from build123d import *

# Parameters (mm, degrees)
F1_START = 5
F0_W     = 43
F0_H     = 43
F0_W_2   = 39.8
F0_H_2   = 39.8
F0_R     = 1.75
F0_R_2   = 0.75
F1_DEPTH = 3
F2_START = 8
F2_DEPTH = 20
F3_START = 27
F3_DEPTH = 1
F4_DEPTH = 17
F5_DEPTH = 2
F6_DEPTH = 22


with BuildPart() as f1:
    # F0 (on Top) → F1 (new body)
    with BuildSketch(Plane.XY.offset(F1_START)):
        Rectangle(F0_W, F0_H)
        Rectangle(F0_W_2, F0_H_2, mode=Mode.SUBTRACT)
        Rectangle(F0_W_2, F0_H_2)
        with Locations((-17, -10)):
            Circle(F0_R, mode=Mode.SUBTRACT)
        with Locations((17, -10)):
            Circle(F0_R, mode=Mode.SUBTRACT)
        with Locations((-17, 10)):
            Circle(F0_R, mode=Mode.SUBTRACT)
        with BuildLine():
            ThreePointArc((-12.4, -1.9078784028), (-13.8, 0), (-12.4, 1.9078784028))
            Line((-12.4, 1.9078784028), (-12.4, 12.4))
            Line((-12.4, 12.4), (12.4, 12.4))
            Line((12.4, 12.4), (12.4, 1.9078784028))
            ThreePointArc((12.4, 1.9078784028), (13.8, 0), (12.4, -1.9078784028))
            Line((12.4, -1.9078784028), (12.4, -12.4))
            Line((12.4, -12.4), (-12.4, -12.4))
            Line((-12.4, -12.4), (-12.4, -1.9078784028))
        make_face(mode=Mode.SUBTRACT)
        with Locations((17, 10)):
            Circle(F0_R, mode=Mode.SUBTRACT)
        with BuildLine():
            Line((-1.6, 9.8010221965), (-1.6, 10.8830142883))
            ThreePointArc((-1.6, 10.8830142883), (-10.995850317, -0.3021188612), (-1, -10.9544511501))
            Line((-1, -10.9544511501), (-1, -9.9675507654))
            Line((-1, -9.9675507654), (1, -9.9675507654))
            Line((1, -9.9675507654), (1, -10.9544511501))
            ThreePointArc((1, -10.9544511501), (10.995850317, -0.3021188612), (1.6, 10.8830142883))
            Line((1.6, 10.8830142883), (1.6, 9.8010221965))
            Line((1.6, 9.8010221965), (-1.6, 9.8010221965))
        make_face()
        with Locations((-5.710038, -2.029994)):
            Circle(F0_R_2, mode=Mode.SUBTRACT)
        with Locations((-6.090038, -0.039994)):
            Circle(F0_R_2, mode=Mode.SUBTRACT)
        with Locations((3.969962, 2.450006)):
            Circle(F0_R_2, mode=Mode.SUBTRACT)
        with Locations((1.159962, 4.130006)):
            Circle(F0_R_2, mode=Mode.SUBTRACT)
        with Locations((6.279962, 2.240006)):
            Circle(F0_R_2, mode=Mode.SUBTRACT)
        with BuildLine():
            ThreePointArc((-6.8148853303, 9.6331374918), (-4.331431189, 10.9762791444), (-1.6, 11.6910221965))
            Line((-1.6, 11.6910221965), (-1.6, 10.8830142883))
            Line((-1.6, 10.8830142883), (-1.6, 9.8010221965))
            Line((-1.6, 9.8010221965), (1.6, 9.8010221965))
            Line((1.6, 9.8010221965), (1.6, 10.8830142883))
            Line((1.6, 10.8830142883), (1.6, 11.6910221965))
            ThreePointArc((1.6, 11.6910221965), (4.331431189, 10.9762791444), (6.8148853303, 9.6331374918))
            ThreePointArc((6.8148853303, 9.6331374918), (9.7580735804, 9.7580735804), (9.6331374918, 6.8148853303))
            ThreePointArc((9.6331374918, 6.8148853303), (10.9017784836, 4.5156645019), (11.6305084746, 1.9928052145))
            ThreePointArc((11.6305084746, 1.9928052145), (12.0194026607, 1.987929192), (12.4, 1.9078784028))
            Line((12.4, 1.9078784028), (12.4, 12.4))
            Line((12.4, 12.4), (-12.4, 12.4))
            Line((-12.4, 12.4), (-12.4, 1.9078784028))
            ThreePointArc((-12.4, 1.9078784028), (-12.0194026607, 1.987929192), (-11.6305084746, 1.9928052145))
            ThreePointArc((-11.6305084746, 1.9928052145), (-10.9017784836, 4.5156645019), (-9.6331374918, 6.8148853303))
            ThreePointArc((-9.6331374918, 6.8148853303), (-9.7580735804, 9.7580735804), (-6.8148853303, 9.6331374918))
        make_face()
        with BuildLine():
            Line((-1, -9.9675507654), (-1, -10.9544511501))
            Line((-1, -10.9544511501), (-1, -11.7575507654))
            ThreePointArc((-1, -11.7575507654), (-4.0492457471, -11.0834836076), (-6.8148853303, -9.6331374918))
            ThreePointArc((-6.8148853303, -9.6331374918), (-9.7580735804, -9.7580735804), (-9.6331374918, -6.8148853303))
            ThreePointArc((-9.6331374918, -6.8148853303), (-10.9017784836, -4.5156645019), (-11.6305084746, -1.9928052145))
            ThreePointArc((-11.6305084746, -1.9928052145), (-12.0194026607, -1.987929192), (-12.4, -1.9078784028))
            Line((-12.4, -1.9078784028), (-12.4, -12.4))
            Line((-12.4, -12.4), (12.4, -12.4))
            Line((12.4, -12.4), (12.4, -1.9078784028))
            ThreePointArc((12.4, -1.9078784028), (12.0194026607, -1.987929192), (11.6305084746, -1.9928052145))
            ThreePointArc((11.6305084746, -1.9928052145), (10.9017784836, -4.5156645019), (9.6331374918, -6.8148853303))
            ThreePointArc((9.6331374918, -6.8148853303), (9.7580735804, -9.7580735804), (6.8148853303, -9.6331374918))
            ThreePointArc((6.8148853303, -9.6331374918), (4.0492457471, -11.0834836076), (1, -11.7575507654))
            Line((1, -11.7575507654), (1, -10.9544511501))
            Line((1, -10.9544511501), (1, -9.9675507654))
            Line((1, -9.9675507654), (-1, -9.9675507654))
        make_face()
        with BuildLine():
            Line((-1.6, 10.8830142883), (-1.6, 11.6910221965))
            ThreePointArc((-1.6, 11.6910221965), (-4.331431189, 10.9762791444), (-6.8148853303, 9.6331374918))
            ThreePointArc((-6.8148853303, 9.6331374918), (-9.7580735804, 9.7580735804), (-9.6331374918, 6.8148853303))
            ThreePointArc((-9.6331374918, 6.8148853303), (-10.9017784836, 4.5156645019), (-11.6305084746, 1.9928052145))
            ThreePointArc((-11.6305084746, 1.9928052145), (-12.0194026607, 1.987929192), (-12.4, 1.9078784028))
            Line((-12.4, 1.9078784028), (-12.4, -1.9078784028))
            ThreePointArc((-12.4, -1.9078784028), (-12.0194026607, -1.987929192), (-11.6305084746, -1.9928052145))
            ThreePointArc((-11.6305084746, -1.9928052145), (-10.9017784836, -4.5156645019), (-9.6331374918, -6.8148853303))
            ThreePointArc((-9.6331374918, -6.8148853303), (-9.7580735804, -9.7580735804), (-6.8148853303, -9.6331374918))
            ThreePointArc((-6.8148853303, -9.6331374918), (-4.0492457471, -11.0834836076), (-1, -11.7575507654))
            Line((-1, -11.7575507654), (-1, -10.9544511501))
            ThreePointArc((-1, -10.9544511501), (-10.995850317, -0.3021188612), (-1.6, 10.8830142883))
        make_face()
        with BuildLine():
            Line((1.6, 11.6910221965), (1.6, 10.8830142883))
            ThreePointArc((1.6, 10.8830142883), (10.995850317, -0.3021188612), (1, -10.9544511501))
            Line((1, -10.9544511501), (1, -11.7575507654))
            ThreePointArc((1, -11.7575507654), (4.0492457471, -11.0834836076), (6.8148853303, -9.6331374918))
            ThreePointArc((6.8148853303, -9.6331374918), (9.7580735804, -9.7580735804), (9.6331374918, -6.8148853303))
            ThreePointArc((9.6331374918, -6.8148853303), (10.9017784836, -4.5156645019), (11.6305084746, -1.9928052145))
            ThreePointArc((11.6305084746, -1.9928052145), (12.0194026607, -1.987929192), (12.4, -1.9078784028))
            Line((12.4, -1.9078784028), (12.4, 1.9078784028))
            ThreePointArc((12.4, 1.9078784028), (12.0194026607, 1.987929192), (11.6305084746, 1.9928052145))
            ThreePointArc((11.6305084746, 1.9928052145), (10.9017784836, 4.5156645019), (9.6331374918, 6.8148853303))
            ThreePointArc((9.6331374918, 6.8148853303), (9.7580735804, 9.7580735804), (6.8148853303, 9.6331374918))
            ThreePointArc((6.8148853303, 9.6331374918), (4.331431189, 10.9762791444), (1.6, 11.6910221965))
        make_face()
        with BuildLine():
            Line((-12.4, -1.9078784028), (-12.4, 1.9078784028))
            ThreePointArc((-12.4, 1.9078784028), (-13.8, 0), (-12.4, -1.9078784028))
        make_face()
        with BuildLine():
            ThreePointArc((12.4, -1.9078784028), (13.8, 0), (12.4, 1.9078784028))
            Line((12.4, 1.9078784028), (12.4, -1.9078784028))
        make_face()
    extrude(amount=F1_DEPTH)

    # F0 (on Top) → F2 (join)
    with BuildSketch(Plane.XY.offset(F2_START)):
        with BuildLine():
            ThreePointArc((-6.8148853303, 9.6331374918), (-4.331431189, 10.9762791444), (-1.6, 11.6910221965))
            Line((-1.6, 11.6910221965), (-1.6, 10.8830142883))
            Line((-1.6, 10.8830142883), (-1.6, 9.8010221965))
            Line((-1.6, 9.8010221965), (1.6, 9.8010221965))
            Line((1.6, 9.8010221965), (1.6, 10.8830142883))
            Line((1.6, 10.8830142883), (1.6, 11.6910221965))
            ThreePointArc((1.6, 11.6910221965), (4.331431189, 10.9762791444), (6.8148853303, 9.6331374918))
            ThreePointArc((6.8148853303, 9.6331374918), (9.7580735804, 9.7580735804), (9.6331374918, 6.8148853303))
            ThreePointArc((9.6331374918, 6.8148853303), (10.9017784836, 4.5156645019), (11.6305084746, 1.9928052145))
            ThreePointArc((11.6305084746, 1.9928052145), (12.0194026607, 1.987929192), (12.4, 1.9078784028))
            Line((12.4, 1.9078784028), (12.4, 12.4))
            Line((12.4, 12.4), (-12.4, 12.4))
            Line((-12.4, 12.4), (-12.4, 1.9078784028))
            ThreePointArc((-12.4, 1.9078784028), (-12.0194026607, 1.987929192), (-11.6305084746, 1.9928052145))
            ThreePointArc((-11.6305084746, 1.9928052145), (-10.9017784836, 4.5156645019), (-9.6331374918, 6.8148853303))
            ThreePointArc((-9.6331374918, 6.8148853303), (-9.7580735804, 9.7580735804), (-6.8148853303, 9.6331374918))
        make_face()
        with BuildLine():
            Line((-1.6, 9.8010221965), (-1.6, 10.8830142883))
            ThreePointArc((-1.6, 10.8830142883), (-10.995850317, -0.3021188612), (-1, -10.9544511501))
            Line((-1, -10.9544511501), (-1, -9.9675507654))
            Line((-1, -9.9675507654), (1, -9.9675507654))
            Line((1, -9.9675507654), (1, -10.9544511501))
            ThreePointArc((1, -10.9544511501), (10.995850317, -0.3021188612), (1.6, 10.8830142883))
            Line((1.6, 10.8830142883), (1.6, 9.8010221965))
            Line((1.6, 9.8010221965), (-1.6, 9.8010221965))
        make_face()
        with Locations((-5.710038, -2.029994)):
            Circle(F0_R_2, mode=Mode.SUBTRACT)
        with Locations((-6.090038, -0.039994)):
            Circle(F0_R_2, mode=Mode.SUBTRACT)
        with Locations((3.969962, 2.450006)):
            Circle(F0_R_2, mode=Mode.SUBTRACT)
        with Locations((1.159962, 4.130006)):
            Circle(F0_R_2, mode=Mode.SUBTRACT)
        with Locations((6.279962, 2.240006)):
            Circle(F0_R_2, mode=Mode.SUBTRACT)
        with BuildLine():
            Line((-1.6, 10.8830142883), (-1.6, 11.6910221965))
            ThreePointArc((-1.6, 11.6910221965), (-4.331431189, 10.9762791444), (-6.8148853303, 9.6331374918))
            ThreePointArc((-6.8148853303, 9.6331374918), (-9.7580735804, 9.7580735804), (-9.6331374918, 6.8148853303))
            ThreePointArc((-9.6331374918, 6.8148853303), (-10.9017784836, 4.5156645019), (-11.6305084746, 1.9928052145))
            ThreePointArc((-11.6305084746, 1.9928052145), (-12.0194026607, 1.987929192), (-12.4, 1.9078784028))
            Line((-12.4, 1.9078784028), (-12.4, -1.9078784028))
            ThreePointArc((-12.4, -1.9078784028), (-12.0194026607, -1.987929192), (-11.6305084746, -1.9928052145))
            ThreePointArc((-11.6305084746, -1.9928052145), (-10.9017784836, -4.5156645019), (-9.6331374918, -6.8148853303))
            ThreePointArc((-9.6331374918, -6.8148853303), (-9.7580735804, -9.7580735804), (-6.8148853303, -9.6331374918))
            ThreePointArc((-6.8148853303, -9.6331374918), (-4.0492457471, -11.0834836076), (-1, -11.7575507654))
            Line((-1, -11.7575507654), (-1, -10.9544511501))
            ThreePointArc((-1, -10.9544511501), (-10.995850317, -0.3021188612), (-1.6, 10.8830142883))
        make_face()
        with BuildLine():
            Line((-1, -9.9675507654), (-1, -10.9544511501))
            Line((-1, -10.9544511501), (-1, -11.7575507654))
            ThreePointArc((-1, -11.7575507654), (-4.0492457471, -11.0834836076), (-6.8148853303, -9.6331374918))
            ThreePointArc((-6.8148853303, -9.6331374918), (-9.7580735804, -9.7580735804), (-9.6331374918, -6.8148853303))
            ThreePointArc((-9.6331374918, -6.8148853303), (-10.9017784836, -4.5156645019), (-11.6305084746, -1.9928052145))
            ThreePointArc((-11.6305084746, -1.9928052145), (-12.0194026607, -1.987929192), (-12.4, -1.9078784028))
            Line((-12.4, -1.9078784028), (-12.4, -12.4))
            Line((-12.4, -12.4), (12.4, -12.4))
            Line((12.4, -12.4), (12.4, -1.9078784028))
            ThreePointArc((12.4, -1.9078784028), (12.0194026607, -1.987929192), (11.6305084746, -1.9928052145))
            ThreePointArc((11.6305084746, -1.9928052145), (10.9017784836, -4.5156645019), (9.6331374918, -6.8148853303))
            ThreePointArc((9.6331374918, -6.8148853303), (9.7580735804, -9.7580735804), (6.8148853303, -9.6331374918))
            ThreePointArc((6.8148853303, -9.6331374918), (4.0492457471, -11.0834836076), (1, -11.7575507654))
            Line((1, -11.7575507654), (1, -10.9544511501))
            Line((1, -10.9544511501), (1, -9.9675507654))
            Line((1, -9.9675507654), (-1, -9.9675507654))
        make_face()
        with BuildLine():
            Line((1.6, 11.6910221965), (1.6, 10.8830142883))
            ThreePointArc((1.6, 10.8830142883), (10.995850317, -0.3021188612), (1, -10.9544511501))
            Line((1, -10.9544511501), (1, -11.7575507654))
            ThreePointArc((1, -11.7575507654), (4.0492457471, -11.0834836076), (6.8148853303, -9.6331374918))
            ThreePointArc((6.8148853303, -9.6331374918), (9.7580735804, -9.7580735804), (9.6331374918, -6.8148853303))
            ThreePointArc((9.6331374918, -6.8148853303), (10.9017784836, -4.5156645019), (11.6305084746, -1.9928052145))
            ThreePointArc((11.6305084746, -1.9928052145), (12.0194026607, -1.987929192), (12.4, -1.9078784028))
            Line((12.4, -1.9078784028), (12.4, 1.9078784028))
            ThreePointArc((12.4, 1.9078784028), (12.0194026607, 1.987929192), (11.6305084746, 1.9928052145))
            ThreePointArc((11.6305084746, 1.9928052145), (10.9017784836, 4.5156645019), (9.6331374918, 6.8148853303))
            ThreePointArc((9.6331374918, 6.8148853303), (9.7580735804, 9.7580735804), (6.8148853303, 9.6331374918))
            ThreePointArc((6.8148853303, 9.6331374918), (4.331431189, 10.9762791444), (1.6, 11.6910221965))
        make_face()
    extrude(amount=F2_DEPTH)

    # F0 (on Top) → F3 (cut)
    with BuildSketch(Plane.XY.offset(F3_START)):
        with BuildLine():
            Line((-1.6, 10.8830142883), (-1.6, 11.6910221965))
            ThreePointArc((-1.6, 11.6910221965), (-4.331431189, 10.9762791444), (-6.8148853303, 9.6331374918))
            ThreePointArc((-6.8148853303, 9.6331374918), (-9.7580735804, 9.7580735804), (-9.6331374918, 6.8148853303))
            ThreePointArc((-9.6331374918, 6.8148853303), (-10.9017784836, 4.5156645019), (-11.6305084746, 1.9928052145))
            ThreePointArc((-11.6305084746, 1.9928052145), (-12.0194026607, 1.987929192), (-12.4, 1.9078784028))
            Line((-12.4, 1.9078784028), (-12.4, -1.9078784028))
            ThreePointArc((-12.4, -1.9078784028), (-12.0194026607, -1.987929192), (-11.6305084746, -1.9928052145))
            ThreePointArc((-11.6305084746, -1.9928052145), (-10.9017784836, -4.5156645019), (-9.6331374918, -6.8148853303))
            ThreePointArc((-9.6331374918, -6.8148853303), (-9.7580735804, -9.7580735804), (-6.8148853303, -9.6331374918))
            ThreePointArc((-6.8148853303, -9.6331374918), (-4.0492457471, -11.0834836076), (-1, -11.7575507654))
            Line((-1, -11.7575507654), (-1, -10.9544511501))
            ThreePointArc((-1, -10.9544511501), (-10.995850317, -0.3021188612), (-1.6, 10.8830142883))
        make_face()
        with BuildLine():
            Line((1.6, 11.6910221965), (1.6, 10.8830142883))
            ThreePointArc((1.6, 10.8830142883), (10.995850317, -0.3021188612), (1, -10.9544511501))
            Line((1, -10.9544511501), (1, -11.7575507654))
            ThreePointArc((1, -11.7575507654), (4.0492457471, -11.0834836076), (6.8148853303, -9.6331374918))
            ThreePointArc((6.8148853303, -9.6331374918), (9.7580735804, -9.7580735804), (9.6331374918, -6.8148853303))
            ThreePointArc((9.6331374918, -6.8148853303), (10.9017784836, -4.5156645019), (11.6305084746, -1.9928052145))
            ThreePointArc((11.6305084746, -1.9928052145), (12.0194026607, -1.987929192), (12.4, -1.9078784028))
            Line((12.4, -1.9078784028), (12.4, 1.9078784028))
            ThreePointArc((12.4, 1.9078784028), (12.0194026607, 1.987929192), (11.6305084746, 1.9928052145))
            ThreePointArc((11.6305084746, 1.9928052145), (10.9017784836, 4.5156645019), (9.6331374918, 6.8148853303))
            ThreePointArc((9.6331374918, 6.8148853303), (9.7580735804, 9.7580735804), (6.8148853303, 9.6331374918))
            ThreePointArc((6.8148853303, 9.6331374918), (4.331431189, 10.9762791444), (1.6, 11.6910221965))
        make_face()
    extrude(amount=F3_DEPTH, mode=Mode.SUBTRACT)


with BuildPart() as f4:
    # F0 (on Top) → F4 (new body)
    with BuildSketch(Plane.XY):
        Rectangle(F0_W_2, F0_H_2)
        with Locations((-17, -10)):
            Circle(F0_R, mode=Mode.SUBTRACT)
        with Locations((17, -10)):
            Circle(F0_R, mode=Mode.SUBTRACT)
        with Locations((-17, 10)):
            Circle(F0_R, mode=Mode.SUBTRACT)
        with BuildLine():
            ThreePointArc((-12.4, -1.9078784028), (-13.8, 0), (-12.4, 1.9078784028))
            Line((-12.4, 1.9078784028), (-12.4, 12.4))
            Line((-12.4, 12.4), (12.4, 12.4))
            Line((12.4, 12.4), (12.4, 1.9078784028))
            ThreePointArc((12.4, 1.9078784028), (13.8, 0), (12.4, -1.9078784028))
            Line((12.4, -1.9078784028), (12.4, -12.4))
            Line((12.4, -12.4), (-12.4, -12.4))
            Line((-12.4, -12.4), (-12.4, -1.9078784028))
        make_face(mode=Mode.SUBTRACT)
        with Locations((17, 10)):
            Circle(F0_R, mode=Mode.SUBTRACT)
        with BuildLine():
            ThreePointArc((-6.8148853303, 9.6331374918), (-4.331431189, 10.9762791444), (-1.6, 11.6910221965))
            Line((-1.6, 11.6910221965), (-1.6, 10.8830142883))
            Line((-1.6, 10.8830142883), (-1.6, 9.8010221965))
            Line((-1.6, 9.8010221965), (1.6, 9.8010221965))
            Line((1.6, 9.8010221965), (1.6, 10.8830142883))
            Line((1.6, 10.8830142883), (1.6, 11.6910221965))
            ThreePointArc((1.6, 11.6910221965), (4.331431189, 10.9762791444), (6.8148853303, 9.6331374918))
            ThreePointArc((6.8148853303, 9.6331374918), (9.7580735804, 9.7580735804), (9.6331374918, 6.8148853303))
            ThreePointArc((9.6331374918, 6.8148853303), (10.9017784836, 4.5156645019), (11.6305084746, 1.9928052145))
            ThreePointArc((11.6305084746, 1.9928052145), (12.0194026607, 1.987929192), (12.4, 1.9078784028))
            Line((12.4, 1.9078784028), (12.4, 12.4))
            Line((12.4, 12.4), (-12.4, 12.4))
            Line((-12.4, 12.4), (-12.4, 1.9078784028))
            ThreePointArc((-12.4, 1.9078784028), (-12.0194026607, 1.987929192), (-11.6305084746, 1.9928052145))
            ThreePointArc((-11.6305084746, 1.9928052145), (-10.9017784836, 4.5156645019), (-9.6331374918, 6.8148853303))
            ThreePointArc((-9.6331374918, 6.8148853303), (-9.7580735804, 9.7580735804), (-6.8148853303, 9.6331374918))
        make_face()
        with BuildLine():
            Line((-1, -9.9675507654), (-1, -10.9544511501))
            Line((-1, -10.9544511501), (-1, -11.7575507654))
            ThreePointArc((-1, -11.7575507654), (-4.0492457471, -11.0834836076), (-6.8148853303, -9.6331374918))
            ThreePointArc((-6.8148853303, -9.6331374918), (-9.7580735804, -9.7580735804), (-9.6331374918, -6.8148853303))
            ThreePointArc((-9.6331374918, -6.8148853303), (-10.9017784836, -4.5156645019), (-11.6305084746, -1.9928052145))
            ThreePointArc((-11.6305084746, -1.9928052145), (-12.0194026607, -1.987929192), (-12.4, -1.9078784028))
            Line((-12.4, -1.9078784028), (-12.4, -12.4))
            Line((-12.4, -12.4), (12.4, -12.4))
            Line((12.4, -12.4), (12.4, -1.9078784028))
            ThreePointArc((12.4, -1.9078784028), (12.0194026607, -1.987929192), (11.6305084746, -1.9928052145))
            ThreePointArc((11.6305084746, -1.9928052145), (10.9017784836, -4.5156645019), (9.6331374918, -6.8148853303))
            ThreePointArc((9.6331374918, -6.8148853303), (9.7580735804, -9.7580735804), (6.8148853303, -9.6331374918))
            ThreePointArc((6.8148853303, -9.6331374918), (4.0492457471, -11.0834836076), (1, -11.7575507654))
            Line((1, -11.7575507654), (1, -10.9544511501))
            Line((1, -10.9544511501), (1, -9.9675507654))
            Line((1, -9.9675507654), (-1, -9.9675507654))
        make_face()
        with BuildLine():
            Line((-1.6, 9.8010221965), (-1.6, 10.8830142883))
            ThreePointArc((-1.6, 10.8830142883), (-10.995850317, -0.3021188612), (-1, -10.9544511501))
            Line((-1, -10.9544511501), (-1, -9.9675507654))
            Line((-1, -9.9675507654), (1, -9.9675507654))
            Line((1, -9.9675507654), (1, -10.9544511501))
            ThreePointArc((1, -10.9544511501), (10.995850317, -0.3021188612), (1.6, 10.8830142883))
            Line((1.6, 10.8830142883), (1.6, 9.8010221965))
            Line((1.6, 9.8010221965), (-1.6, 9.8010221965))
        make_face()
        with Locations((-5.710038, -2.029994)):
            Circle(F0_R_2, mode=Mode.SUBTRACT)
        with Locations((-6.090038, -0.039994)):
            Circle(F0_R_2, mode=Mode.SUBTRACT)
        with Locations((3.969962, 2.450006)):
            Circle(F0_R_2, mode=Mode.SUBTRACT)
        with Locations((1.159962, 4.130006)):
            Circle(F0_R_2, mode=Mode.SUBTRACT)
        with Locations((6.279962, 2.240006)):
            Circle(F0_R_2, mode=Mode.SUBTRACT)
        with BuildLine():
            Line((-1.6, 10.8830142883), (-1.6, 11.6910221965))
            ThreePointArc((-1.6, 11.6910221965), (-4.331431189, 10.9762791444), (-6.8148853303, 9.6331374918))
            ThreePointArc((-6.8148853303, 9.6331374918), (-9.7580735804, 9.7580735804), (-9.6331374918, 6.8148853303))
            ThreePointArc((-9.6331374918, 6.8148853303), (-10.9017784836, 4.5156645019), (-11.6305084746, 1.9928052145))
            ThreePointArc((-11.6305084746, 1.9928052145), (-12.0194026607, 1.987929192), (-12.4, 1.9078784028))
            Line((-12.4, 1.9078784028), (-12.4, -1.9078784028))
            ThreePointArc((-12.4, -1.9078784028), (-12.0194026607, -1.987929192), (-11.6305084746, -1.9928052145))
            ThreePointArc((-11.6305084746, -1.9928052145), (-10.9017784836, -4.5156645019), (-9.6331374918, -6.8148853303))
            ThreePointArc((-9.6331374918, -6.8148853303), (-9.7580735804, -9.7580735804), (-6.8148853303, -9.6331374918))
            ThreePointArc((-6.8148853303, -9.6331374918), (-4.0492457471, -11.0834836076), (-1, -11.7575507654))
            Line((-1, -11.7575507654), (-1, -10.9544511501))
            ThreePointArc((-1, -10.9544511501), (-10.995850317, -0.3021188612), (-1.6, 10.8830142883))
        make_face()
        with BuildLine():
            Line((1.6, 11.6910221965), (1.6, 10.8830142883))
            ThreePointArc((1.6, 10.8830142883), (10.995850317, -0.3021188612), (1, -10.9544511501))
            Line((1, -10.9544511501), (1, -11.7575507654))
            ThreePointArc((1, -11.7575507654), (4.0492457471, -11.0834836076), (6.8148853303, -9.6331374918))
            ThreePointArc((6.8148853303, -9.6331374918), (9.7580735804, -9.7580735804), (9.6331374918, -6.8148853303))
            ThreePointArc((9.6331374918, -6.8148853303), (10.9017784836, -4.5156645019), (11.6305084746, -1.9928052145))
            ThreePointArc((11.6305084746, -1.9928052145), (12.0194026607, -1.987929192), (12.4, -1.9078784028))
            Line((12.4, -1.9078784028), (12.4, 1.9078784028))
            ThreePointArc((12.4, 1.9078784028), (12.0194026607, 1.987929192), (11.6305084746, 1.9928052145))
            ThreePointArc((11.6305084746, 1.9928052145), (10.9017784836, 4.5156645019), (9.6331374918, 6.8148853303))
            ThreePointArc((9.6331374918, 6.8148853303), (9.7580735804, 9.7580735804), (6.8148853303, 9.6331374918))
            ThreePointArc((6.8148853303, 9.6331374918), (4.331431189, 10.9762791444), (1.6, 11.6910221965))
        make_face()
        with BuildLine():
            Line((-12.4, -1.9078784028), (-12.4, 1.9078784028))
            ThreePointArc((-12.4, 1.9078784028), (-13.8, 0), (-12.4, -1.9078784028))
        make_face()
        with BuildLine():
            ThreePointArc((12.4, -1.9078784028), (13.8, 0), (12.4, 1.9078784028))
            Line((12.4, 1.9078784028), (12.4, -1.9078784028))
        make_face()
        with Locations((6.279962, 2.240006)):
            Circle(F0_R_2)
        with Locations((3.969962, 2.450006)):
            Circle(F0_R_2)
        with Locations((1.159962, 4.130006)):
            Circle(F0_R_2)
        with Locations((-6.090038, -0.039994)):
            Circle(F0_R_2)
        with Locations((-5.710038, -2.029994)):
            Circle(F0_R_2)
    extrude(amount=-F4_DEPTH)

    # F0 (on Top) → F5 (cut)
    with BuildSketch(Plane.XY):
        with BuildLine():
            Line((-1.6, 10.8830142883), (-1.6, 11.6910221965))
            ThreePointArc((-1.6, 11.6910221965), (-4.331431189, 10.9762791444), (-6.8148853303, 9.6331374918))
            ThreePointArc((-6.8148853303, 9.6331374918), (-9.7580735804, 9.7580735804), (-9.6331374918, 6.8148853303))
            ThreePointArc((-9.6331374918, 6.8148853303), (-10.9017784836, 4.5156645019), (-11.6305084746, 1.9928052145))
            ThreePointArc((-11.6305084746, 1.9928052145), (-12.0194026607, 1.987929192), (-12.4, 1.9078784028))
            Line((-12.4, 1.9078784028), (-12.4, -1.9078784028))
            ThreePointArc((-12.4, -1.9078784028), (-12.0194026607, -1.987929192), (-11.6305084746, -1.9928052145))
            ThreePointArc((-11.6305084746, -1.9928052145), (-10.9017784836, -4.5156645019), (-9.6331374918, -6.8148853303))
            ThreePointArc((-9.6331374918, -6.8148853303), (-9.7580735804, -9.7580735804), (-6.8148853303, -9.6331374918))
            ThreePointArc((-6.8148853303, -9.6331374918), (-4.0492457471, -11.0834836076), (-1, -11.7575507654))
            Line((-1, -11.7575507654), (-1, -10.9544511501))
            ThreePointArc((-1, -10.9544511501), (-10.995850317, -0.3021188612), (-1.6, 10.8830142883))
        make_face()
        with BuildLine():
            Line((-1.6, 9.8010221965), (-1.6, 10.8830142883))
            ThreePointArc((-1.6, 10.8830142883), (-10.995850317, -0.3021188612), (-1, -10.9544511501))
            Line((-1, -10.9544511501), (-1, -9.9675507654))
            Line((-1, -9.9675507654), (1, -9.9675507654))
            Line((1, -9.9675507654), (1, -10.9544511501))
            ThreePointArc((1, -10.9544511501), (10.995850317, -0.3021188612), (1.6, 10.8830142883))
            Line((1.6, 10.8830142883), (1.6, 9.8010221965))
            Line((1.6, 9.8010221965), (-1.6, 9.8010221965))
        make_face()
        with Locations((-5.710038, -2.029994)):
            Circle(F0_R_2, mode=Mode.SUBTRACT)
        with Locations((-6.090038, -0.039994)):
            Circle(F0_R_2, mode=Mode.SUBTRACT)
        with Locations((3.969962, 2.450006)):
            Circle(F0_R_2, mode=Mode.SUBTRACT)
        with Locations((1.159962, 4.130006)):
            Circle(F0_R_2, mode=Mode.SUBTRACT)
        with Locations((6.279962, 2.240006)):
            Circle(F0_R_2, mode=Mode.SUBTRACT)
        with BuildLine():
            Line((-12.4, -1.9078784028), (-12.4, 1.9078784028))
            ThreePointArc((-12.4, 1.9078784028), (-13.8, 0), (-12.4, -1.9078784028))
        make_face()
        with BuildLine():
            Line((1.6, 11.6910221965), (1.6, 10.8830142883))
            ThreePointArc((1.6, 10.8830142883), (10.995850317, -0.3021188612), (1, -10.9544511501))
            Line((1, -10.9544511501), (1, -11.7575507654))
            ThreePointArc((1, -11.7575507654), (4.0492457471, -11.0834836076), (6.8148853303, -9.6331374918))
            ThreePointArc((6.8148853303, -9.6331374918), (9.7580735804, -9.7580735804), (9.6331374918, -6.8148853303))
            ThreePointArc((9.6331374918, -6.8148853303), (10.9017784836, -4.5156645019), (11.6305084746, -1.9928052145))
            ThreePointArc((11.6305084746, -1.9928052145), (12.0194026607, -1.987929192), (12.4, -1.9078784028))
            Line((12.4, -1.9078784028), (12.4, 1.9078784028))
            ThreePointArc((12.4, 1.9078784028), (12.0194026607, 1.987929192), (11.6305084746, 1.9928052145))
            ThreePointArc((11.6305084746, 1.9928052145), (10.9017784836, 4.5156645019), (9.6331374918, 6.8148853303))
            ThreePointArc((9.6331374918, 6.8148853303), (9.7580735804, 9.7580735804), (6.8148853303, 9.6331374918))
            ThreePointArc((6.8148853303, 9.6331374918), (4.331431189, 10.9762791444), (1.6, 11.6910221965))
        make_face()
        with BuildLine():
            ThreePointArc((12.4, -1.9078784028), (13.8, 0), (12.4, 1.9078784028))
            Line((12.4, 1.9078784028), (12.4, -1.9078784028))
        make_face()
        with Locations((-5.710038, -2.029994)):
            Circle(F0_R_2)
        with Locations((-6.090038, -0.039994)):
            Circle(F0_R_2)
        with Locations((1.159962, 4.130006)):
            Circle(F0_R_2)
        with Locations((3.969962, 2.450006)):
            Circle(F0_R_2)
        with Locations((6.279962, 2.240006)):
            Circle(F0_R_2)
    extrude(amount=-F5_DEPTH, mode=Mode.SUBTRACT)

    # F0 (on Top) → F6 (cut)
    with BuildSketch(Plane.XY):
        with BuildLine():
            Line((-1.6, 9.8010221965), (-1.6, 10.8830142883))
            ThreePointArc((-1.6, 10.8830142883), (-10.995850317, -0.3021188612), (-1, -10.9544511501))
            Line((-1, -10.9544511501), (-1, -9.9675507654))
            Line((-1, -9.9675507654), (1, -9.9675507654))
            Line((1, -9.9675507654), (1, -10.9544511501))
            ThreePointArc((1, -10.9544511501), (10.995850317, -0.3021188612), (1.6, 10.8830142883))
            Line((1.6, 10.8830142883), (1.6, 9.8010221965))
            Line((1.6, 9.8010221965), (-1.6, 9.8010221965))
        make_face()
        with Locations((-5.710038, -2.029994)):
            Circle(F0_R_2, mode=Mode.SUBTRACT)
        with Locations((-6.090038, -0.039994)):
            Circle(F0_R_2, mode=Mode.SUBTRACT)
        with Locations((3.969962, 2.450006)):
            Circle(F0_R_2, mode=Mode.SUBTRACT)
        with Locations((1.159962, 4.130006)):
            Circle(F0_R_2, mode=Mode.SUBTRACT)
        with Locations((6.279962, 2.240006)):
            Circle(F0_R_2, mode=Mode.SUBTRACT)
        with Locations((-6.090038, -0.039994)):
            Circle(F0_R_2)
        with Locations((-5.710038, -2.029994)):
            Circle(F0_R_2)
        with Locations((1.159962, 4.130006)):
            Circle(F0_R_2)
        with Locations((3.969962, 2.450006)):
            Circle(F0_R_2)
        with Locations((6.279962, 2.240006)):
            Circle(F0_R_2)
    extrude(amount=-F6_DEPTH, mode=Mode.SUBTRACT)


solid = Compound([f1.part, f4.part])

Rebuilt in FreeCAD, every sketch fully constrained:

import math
import FreeCAD as App
import Part
import Sketcher

V = App.Vector
Q = App.Units.Quantity

doc = App.newDocument("Part")
params = doc.addObject("Spreadsheet::Sheet", "Params")
for row, (alias, value) in enumerate([
    ("sketch1_diameter", "3.5 mm"),
    ("sketch1_diameter2", "1.5 mm"),
    ("sketch1_width", "43 mm"),
    ("pad1_length", "3 mm"),
    ("sketch2_diameter", "1.5 mm"),
    ("sketch2_width", "24.8 mm"),
    ("pad2_length", "20 mm"),
    ("sketch3_radius", "2 mm"),
    ("sketch3_radius2", "11 mm"),
    ("sketch3_radius3", "11.8 mm"),
    ("pocket1_length", "1 mm"),
    ("sketch4_diameter", "3.5 mm"),
    ("sketch4_width", "39.8 mm"),
    ("pad3_length", "17 mm"),
    ("sketch5_radius", "2 mm"),
    ("sketch5_radius2", "11.8 mm"),
    ("sketch5_width", "2 mm"),
    ("sketch5_width2", "3.2 mm"),
    ("sketch5_height", "1.79 mm"),
    ("pocket2_length", "2 mm"),
    ("sketch6_radius", "11 mm"),
    ("sketch6_width", "2 mm"),
    ("sketch6_width2", "3.2 mm"),
    ("pocket3_length", "22 mm"),
], start=1):
    params.set(f"A{row}", alias)
    params.set(f"B{row}", "=" + value)
    params.setAlias(f"B{row}", alias)

body = doc.addObject("PartDesign::Body", "Body")

sketch1 = body.newObject("Sketcher::SketchObject", "Sketch")
sketch1.AttachmentSupport = (doc.getObject("XY_Plane"), [""])
sketch1.MapMode = "FlatFace"
sketch1.AttachmentOffset = App.Placement(V(0, 0, 5), App.Rotation())
sketch1.addGeometry([
    Part.LineSegment(V(-21.5, 21.5, 0), V(-21.5, -21.5, 0)),
    Part.LineSegment(V(-21.5, -21.5, 0), V(21.5, -21.5, 0)),
    Part.LineSegment(V(21.5, -21.5, 0), V(21.5, 21.5, 0)),
    Part.LineSegment(V(21.5, 21.5, 0), V(-21.5, 21.5, 0)),
    Part.Circle(V(-17, -10, 0), V(0, 0, 1), 1.75),
    Part.Circle(V(17, -10, 0), V(0, 0, 1), 1.75),
    Part.Circle(V(-17, 10, 0), V(0, 0, 1), 1.75),
    Part.Circle(V(17, 10, 0), V(0, 0, 1), 1.75),
    Part.Circle(V(1.159962, 4.130006, 0), V(0, 0, 1), 0.75),
    Part.Circle(V(6.279962, 2.240006, 0), V(0, 0, 1), 0.75),
    Part.Circle(V(3.969962, 2.450006, 0), V(0, 0, 1), 0.75),
    Part.Circle(V(-5.710038, -2.029994, 0), V(0, 0, 1), 0.75),
    Part.Circle(V(-6.090038, -0.039994, 0), V(0, 0, 1), 0.75),
], False)
sketch1.addConstraint([
    Sketcher.Constraint("Coincident", 0, 2, 1, 1),
    Sketcher.Constraint("Coincident", 1, 2, 2, 1),
    Sketcher.Constraint("Coincident", 2, 2, 3, 1),
    Sketcher.Constraint("Coincident", 3, 2, 0, 1),
    Sketcher.Constraint("Vertical", 0),
    Sketcher.Constraint("Horizontal", 1),
    Sketcher.Constraint("Vertical", 2),
    Sketcher.Constraint("Horizontal", 3),
    Sketcher.Constraint("Equal", 4, 5),
    Sketcher.Constraint("Equal", 5, 6),
    Sketcher.Constraint("Equal", 6, 7),
    Sketcher.Constraint("Equal", 8, 9),
    Sketcher.Constraint("Equal", 9, 10),
    Sketcher.Constraint("Equal", 10, 11),
    Sketcher.Constraint("Equal", 11, 12),
    Sketcher.Constraint("Symmetric", 5, 3, 6, 3, -1, 1),
    Sketcher.Constraint("Symmetric", 4, 3, 7, 3, -1, 1),
    Sketcher.Constraint("Symmetric", 0, 2, 2, 2, -1, 1),
    Sketcher.Constraint("Symmetric", 4, 3, 5, 3, -2),
    Sketcher.Constraint("Equal", 3, 0),
    Sketcher.Constraint("Diameter", 4, Q("3.5 mm")),
    Sketcher.Constraint("Diameter", 8, Q("1.5 mm")),
    Sketcher.Constraint("DistanceX", 1, 1, 1, 2, Q("43 mm")),
    Sketcher.Constraint("DistanceX", 4, 3, -1, 1, Q("17 mm")),
    Sketcher.Constraint("DistanceY", 4, 3, -1, 1, Q("10 mm")),
    Sketcher.Constraint("DistanceX", 8, 3, 9, 3, Q("5.12 mm")),
    Sketcher.Constraint("DistanceY", 9, 3, 8, 3, Q("1.89 mm")),
    Sketcher.Constraint("DistanceX", 10, 3, 9, 3, Q("2.31 mm")),
    Sketcher.Constraint("DistanceY", 9, 3, 10, 3, Q("0.21 mm")),
    Sketcher.Constraint("DistanceX", 11, 3, 8, 3, Q("6.87 mm")),
    Sketcher.Constraint("DistanceY", 11, 3, 8, 3, Q("6.16 mm")),
    Sketcher.Constraint("DistanceX", 12, 3, 11, 3, Q("0.38 mm")),
    Sketcher.Constraint("DistanceY", 11, 3, 12, 3, Q("1.99 mm")),
    Sketcher.Constraint("DistanceX", -1, 1, 8, 3, Q("1.159962 mm")),
    Sketcher.Constraint("DistanceY", -1, 1, 8, 3, Q("4.130006 mm")),
])
sketch1.setExpression("Constraints[20]", "Params.sketch1_diameter")
sketch1.setExpression("Constraints[21]", "Params.sketch1_diameter2")
sketch1.setExpression("Constraints[22]", "Params.sketch1_width")
pad1 = body.newObject("PartDesign::Pad", "Pad")
pad1.Profile = sketch1
pad1.setExpression("Length", "Params.pad1_length")

sketch2 = body.newObject("Sketcher::SketchObject", "Sketch001")
sketch2.AttachmentSupport = (doc.getObject("XY_Plane"), [""])
sketch2.MapMode = "FlatFace"
sketch2.AttachmentOffset = App.Placement(V(0, 0, 8), App.Rotation())
sketch2.addGeometry([
    Part.LineSegment(V(12.4, 12.4, 0), V(-12.4, 12.4, 0)),
    Part.LineSegment(V(-12.4, 12.4, 0), V(-12.4, -12.4, 0)),
    Part.LineSegment(V(-12.4, -12.4, 0), V(12.4, -12.4, 0)),
    Part.LineSegment(V(12.4, -12.4, 0), V(12.4, 12.4, 0)),
    Part.Circle(V(-5.710038, -2.029994, 0), V(0, 0, 1), 0.75),
    Part.Circle(V(-6.090038, -0.039994, 0), V(0, 0, 1), 0.75),
    Part.Circle(V(3.969962, 2.450006, 0), V(0, 0, 1), 0.75),
    Part.Circle(V(6.279962, 2.240006, 0), V(0, 0, 1), 0.75),
    Part.Circle(V(1.159962, 4.130006, 0), V(0, 0, 1), 0.75),
], False)
sketch2.addConstraint([
    Sketcher.Constraint("Coincident", 0, 2, 1, 1),
    Sketcher.Constraint("Coincident", 1, 2, 2, 1),
    Sketcher.Constraint("Coincident", 2, 2, 3, 1),
    Sketcher.Constraint("Coincident", 3, 2, 0, 1),
    Sketcher.Constraint("Horizontal", 0),
    Sketcher.Constraint("Vertical", 1),
    Sketcher.Constraint("Horizontal", 2),
    Sketcher.Constraint("Vertical", 3),
    Sketcher.Constraint("Equal", 4, 5),
    Sketcher.Constraint("Equal", 5, 6),
    Sketcher.Constraint("Equal", 6, 7),
    Sketcher.Constraint("Equal", 7, 8),
    Sketcher.Constraint("Symmetric", 0, 2, 2, 2, -1, 1),
    Sketcher.Constraint("Equal", 2, 1),
    Sketcher.Constraint("Diameter", 4, Q("1.5 mm")),
    Sketcher.Constraint("DistanceX", 0, 2, 0, 1, Q("24.8 mm")),
    Sketcher.Constraint("DistanceX", 5, 3, 4, 3, Q("0.38 mm")),
    Sketcher.Constraint("DistanceY", 4, 3, 5, 3, Q("1.99 mm")),
    Sketcher.Constraint("DistanceX", 5, 3, 6, 3, Q("10.06 mm")),
    Sketcher.Constraint("DistanceY", 5, 3, 6, 3, Q("2.49 mm")),
    Sketcher.Constraint("DistanceX", 6, 3, 7, 3, Q("2.31 mm")),
    Sketcher.Constraint("DistanceY", 7, 3, 6, 3, Q("0.21 mm")),
    Sketcher.Constraint("DistanceX", 8, 3, 6, 3, Q("2.81 mm")),
    Sketcher.Constraint("DistanceY", 6, 3, 8, 3, Q("1.68 mm")),
    Sketcher.Constraint("DistanceX", -1, 1, 8, 3, Q("1.159962 mm")),
    Sketcher.Constraint("DistanceY", 4, 3, -1, 1, Q("2.029994 mm")),
])
sketch2.setExpression("Constraints[14]", "Params.sketch2_diameter")
sketch2.setExpression("Constraints[15]", "Params.sketch2_width")
pad2 = body.newObject("PartDesign::Pad", "Pad001")
pad2.Profile = sketch2
pad2.setExpression("Length", "Params.pad2_length")

sketch3 = body.newObject("Sketcher::SketchObject", "Sketch002")
sketch3.AttachmentSupport = (doc.getObject("XY_Plane"), [""])
sketch3.MapMode = "FlatFace"
sketch3.AttachmentOffset = App.Placement(V(0, 0, 27), App.Rotation())
sketch3.addGeometry([
    Part.LineSegment(V(-1.6, 10.883014, 0), V(-1.6, 11.691022, 0)),
    Part.ArcOfCircle(Part.Circle(V(0, 0, 0), V(0, 0, 1), 11.8), math.radians(97.792924), math.radians(125.277189)),
    Part.ArcOfCircle(Part.Circle(V(-8.34386, 8.34386, 0), V(0, 0, 1), 2), math.radians(40.138595), math.radians(229.861405)),
    Part.ArcOfCircle(Part.Circle(V(0, 0, 0), V(0, 0, 1), 11.8), math.radians(144.722811), math.radians(170.277189)),
    Part.ArcOfCircle(Part.Circle(V(-11.8, 0, 0), V(0, 0, 1), 2), math.radians(85.138595), math.radians(107.457603)),
    Part.LineSegment(V(-12.4, 1.907878, 0), V(-12.4, -1.907878, 0)),
    Part.ArcOfCircle(Part.Circle(V(-11.8, 0, 0), V(0, 0, 1), 2), math.radians(-107.457603), math.radians(-85.138595)),
    Part.ArcOfCircle(Part.Circle(V(0, 0, 0), V(0, 0, 1), 11.8), math.radians(-170.277189), math.radians(-144.722811)),
    Part.ArcOfCircle(Part.Circle(V(-8.34386, -8.34386, 0), V(0, 0, 1), 2), math.radians(130.138595), math.radians(319.861405)),
    Part.ArcOfCircle(Part.Circle(V(0, 0, 0), V(0, 0, 1), 11.8), math.radians(-125.277189), math.radians(-94.861405)),
    Part.LineSegment(V(-1, -11.757551, 0), V(-1, -10.954451, 0)),
    Part.ArcOfCircle(Part.Circle(V(0, 0, 0), V(0, 0, 1), 11), math.radians(98.363602), math.radians(264.784091)),
    Part.LineSegment(V(1.6, 11.691022, 0), V(1.6, 10.883014, 0)),
    Part.ArcOfCircle(Part.Circle(V(0, 0, 0), V(0, 0, 1), 11), math.radians(-84.784091), math.radians(81.636398)),
    Part.LineSegment(V(1, -10.954451, 0), V(1, -11.757551, 0)),
    Part.ArcOfCircle(Part.Circle(V(0, 0, 0), V(0, 0, 1), 11.8), math.radians(-85.138595), math.radians(-54.722811)),
    Part.ArcOfCircle(Part.Circle(V(8.34386, -8.34386, 0), V(0, 0, 1), 2), math.radians(-139.861405), math.radians(49.861405)),
    Part.ArcOfCircle(Part.Circle(V(0, 0, 0), V(0, 0, 1), 11.8), math.radians(-35.277189), math.radians(-9.722811)),
    Part.ArcOfCircle(Part.Circle(V(11.8, 0, 0), V(0, 0, 1), 2), math.radians(-94.861405), math.radians(-72.542397)),
    Part.LineSegment(V(12.4, -1.907878, 0), V(12.4, 1.907878, 0)),
    Part.ArcOfCircle(Part.Circle(V(11.8, 0, 0), V(0, 0, 1), 2), math.radians(72.542397), math.radians(94.861405)),
    Part.ArcOfCircle(Part.Circle(V(0, 0, 0), V(0, 0, 1), 11.8), math.radians(9.722811), math.radians(35.277189)),
    Part.ArcOfCircle(Part.Circle(V(8.34386, 8.34386, 0), V(0, 0, 1), 2), math.radians(-49.861405), math.radians(139.861405)),
    Part.ArcOfCircle(Part.Circle(V(0, 0, 0), V(0, 0, 1), 11.8), math.radians(54.722811), math.radians(82.207076)),
], False)
sketch3.addConstraint([
    Sketcher.Constraint("Coincident", 0, 2, 1, 1),
    Sketcher.Constraint("Coincident", 1, 2, 2, 1),
    Sketcher.Constraint("Coincident", 2, 2, 3, 1),
    Sketcher.Constraint("Coincident", 3, 2, 4, 1),
    Sketcher.Constraint("Coincident", 4, 2, 5, 1),
    Sketcher.Constraint("Coincident", 5, 2, 6, 1),
    Sketcher.Constraint("Coincident", 6, 2, 7, 1),
    Sketcher.Constraint("Coincident", 7, 2, 8, 1),
    Sketcher.Constraint("Coincident", 8, 2, 9, 1),
    Sketcher.Constraint("Coincident", 9, 2, 10, 1),
    Sketcher.Constraint("Coincident", 10, 2, 11, 2),
    Sketcher.Constraint("Coincident", 11, 1, 0, 1),
    Sketcher.Constraint("Coincident", 12, 2, 13, 2),
    Sketcher.Constraint("Coincident", 13, 1, 14, 1),
    Sketcher.Constraint("Coincident", 14, 2, 15, 1),
    Sketcher.Constraint("Coincident", 15, 2, 16, 1),
    Sketcher.Constraint("Coincident", 16, 2, 17, 1),
    Sketcher.Constraint("Coincident", 17, 2, 18, 1),
    Sketcher.Constraint("Coincident", 18, 2, 19, 1),
    Sketcher.Constraint("Coincident", 19, 2, 20, 1),
    Sketcher.Constraint("Coincident", 20, 2, 21, 1),
    Sketcher.Constraint("Coincident", 21, 2, 22, 1),
    Sketcher.Constraint("Coincident", 22, 2, 23, 1),
    Sketcher.Constraint("Coincident", 23, 2, 12, 1),
    Sketcher.Constraint("Vertical", 0),
    Sketcher.Constraint("Vertical", 5),
    Sketcher.Constraint("Vertical", 10),
    Sketcher.Constraint("Vertical", 12),
    Sketcher.Constraint("Vertical", 14),
    Sketcher.Constraint("Vertical", 19),
    Sketcher.Constraint("Coincident", 1, 3, -1, 1),
    Sketcher.Constraint("Coincident", 3, 3, -1, 1),
    Sketcher.Constraint("Coincident", 7, 3, -1, 1),
    Sketcher.Constraint("Coincident", 9, 3, -1, 1),
    Sketcher.Constraint("Coincident", 11, 3, -1, 1),
    Sketcher.Constraint("Coincident", 13, 3, -1, 1),
    Sketcher.Constraint("Coincident", 15, 3, -1, 1),
    Sketcher.Constraint("Coincident", 17, 3, -1, 1),
    Sketcher.Constraint("Coincident", 21, 3, -1, 1),
    Sketcher.Constraint("Coincident", 23, 3, -1, 1),
    Sketcher.Constraint("Coincident", 6, 3, 4, 3),
    Sketcher.Constraint("Coincident", 20, 3, 18, 3),
    Sketcher.Constraint("Equal", 1, 3),
    Sketcher.Constraint("Equal", 2, 4),
    Sketcher.Constraint("Equal", 4, 6),
    Sketcher.Constraint("Equal", 3, 7),
    Sketcher.Constraint("Equal", 6, 8),
    Sketcher.Constraint("Equal", 7, 9),
    Sketcher.Constraint("Equal", 11, 13),
    Sketcher.Constraint("Equal", 9, 15),
    Sketcher.Constraint("Equal", 8, 16),
    Sketcher.Constraint("Equal", 15, 17),
    Sketcher.Constraint("Equal", 16, 18),
    Sketcher.Constraint("Equal", 18, 20),
    Sketcher.Constraint("Equal", 17, 21),
    Sketcher.Constraint("Equal", 20, 22),
    Sketcher.Constraint("Equal", 21, 23),
    Sketcher.Constraint("Symmetric", 2, 3, 16, 3, -1, 1),
    Sketcher.Constraint("Symmetric", 4, 3, 18, 3, -1, 1),
    Sketcher.Constraint("Symmetric", 8, 3, 22, 3, -1, 1),
    Sketcher.Constraint("Symmetric", 8, 3, 16, 3, -2),
    Sketcher.Constraint("Symmetric", 5, 2, 18, 2, -2),
    Sketcher.Constraint("Horizontal", 11, 1, 12, 2),
    Sketcher.Constraint("Horizontal", 10, 2, 13, 1),
    Sketcher.Constraint("Radius", 2, Q("2 mm")),
    Sketcher.Constraint("Radius", 11, Q("11 mm")),
    Sketcher.Constraint("Radius", 1, Q("11.8 mm")),
    Sketcher.Constraint("DistanceX", 9, 2, -1, 1, Q("1 mm")),
    Sketcher.Constraint("DistanceX", 4, 3, -1, 1, Q("11.8 mm")),
    Sketcher.Constraint("DistanceX", 0, 2, -1, 1, Q("1.6 mm")),
    Sketcher.Constraint("DistanceX", 4, 2, -1, 1, Q("12.4 mm")),
    Sketcher.Constraint("DistanceX", 2, 3, -1, 1, Q("8.34386 mm")),
    Sketcher.Constraint("DistanceY", -1, 1, 2, 3, Q("8.34386 mm")),
])
sketch3.setExpression("Constraints[64]", "Params.sketch3_radius")
sketch3.setExpression("Constraints[65]", "Params.sketch3_radius2")
sketch3.setExpression("Constraints[66]", "Params.sketch3_radius3")
pocket1 = body.newObject("PartDesign::Pocket", "Pocket")
pocket1.Profile = sketch3
pocket1.setExpression("Length", "Params.pocket1_length")
pocket1.Reversed = True
body2 = doc.addObject("PartDesign::Body", "Body001")

sketch4 = body2.newObject("Sketcher::SketchObject", "Sketch003")
sketch4.AttachmentSupport = (doc.getObject("XY_Plane001"), [""])
sketch4.MapMode = "FlatFace"
sketch4.addGeometry([
    Part.LineSegment(V(-19.9, 19.9, 0), V(-19.9, -19.9, 0)),
    Part.LineSegment(V(-19.9, -19.9, 0), V(19.9, -19.9, 0)),
    Part.LineSegment(V(19.9, -19.9, 0), V(19.9, 19.9, 0)),
    Part.LineSegment(V(19.9, 19.9, 0), V(-19.9, 19.9, 0)),
    Part.Circle(V(-17, -10, 0), V(0, 0, 1), 1.75),
    Part.Circle(V(17, -10, 0), V(0, 0, 1), 1.75),
    Part.Circle(V(-17, 10, 0), V(0, 0, 1), 1.75),
    Part.Circle(V(17, 10, 0), V(0, 0, 1), 1.75),
], False)
sketch4.addConstraint([
    Sketcher.Constraint("Coincident", 0, 2, 1, 1),
    Sketcher.Constraint("Coincident", 1, 2, 2, 1),
    Sketcher.Constraint("Coincident", 2, 2, 3, 1),
    Sketcher.Constraint("Coincident", 3, 2, 0, 1),
    Sketcher.Constraint("Vertical", 0),
    Sketcher.Constraint("Horizontal", 1),
    Sketcher.Constraint("Vertical", 2),
    Sketcher.Constraint("Horizontal", 3),
    Sketcher.Constraint("Equal", 4, 5),
    Sketcher.Constraint("Equal", 5, 6),
    Sketcher.Constraint("Equal", 6, 7),
    Sketcher.Constraint("Symmetric", 5, 3, 6, 3, -1, 1),
    Sketcher.Constraint("Symmetric", 4, 3, 7, 3, -1, 1),
    Sketcher.Constraint("Symmetric", 0, 2, 2, 2, -1, 1),
    Sketcher.Constraint("Symmetric", 4, 3, 5, 3, -2),
    Sketcher.Constraint("Equal", 3, 0),
    Sketcher.Constraint("Diameter", 4, Q("3.5 mm")),
    Sketcher.Constraint("DistanceX", 1, 1, 1, 2, Q("39.8 mm")),
    Sketcher.Constraint("DistanceX", 4, 3, -1, 1, Q("17 mm")),
    Sketcher.Constraint("DistanceY", 4, 3, -1, 1, Q("10 mm")),
])
sketch4.setExpression("Constraints[16]", "Params.sketch4_diameter")
sketch4.setExpression("Constraints[17]", "Params.sketch4_width")
pad3 = body2.newObject("PartDesign::Pad", "Pad002")
pad3.Profile = sketch4
pad3.setExpression("Length", "Params.pad3_length")
pad3.Reversed = True

sketch5 = body2.newObject("Sketcher::SketchObject", "Sketch004")
sketch5.AttachmentSupport = (doc.getObject("XY_Plane001"), [""])
sketch5.MapMode = "FlatFace"
sketch5.addGeometry([
    Part.ArcOfCircle(Part.Circle(V(0, 0, 0), V(0, 0, 1), 11.8), math.radians(97.792924), math.radians(125.277189)),
    Part.ArcOfCircle(Part.Circle(V(-8.34386, 8.34386, 0), V(0, 0, 1), 2), math.radians(40.138595), math.radians(229.861405)),
    Part.ArcOfCircle(Part.Circle(V(0, 0, 0), V(0, 0, 1), 11.8), math.radians(144.722811), math.radians(170.277189)),
    Part.ArcOfCircle(Part.Circle(V(-11.8, 0, 0), V(0, 0, 1), 2), math.radians(85.138595), math.radians(107.457603)),
    Part.ArcOfCircle(Part.Circle(V(-11.8, 0, 0), V(0, 0, 1), 2), math.radians(107.457603), math.radians(252.542397)),
    Part.ArcOfCircle(Part.Circle(V(-11.8, 0, 0), V(0, 0, 1), 2), math.radians(-107.457603), math.radians(-85.138595)),
    Part.ArcOfCircle(Part.Circle(V(0, 0, 0), V(0, 0, 1), 11.8), math.radians(-170.277189), math.radians(-144.722811)),
    Part.ArcOfCircle(Part.Circle(V(-8.34386, -8.34386, 0), V(0, 0, 1), 2), math.radians(130.138595), math.radians(319.861405)),
    Part.ArcOfCircle(Part.Circle(V(0, 0, 0), V(0, 0, 1), 11.8), math.radians(-125.277189), math.radians(-94.861405)),
    Part.LineSegment(V(-1, -11.757551, 0), V(-1, -9.967551, 0)),
    Part.LineSegment(V(-1, -9.967551, 0), V(1, -9.967551, 0)),
    Part.LineSegment(V(1, -9.967551, 0), V(1, -11.757551, 0)),
    Part.ArcOfCircle(Part.Circle(V(0, 0, 0), V(0, 0, 1), 11.8), math.radians(-85.138595), math.radians(-54.722811)),
    Part.ArcOfCircle(Part.Circle(V(8.34386, -8.34386, 0), V(0, 0, 1), 2), math.radians(-139.861405), math.radians(49.861405)),
    Part.ArcOfCircle(Part.Circle(V(0, 0, 0), V(0, 0, 1), 11.8), math.radians(-35.277189), math.radians(-9.722811)),
    Part.ArcOfCircle(Part.Circle(V(11.8, 0, 0), V(0, 0, 1), 2), math.radians(-94.861405), math.radians(-72.542397)),
    Part.ArcOfCircle(Part.Circle(V(11.8, 0, 0), V(0, 0, 1), 2), math.radians(-72.542397), math.radians(72.542397)),
    Part.ArcOfCircle(Part.Circle(V(11.8, 0, 0), V(0, 0, 1), 2), math.radians(72.542397), math.radians(94.861405)),
    Part.ArcOfCircle(Part.Circle(V(0, 0, 0), V(0, 0, 1), 11.8), math.radians(9.722811), math.radians(35.277189)),
    Part.ArcOfCircle(Part.Circle(V(8.34386, 8.34386, 0), V(0, 0, 1), 2), math.radians(-49.861405), math.radians(139.861405)),
    Part.ArcOfCircle(Part.Circle(V(0, 0, 0), V(0, 0, 1), 11.8), math.radians(54.722811), math.radians(82.207076)),
    Part.LineSegment(V(1.6, 11.691022, 0), V(1.6, 9.801022, 0)),
    Part.LineSegment(V(1.6, 9.801022, 0), V(-1.6, 9.801022, 0)),
    Part.LineSegment(V(-1.6, 9.801022, 0), V(-1.6, 11.691022, 0)),
], False)
sketch5.addConstraint([
    Sketcher.Constraint("Coincident", 0, 2, 1, 1),
    Sketcher.Constraint("Coincident", 1, 2, 2, 1),
    Sketcher.Constraint("Coincident", 2, 2, 3, 1),
    Sketcher.Constraint("Tangent", 3, 2, 4, 1),
    Sketcher.Constraint("Tangent", 4, 2, 5, 1),
    Sketcher.Constraint("Coincident", 5, 2, 6, 1),
    Sketcher.Constraint("Coincident", 6, 2, 7, 1),
    Sketcher.Constraint("Coincident", 7, 2, 8, 1),
    Sketcher.Constraint("Coincident", 8, 2, 9, 1),
    Sketcher.Constraint("Coincident", 9, 2, 10, 1),
    Sketcher.Constraint("Coincident", 10, 2, 11, 1),
    Sketcher.Constraint("Coincident", 11, 2, 12, 1),
    Sketcher.Constraint("Coincident", 12, 2, 13, 1),
    Sketcher.Constraint("Coincident", 13, 2, 14, 1),
    Sketcher.Constraint("Coincident", 14, 2, 15, 1),
    Sketcher.Constraint("Tangent", 15, 2, 16, 1),
    Sketcher.Constraint("Tangent", 16, 2, 17, 1),
    Sketcher.Constraint("Coincident", 17, 2, 18, 1),
    Sketcher.Constraint("Coincident", 18, 2, 19, 1),
    Sketcher.Constraint("Coincident", 19, 2, 20, 1),
    Sketcher.Constraint("Coincident", 20, 2, 21, 1),
    Sketcher.Constraint("Coincident", 21, 2, 22, 1),
    Sketcher.Constraint("Coincident", 22, 2, 23, 1),
    Sketcher.Constraint("Coincident", 23, 2, 0, 1),
    Sketcher.Constraint("Vertical", 9),
    Sketcher.Constraint("Horizontal", 10),
    Sketcher.Constraint("Vertical", 11),
    Sketcher.Constraint("Vertical", 21),
    Sketcher.Constraint("Horizontal", 22),
    Sketcher.Constraint("Vertical", 23),
    Sketcher.Constraint("Coincident", 0, 3, -1, 1),
    Sketcher.Constraint("Coincident", 2, 3, -1, 1),
    Sketcher.Constraint("Coincident", 6, 3, -1, 1),
    Sketcher.Constraint("Coincident", 8, 3, -1, 1),
    Sketcher.Constraint("Coincident", 12, 3, -1, 1),
    Sketcher.Constraint("Coincident", 14, 3, -1, 1),
    Sketcher.Constraint("Coincident", 18, 3, -1, 1),
    Sketcher.Constraint("Coincident", 20, 3, -1, 1),
    Sketcher.Constraint("Coincident", 5, 3, 3, 3),
    Sketcher.Constraint("Coincident", 17, 3, 15, 3),
    Sketcher.Constraint("Equal", 0, 2),
    Sketcher.Constraint("Equal", 1, 3),
    Sketcher.Constraint("Equal", 2, 6),
    Sketcher.Constraint("Equal", 5, 7),
    Sketcher.Constraint("Equal", 6, 8),
    Sketcher.Constraint("Equal", 8, 12),
    Sketcher.Constraint("Equal", 7, 13),
    Sketcher.Constraint("Equal", 12, 14),
    Sketcher.Constraint("Equal", 13, 15),
    Sketcher.Constraint("Equal", 14, 18),
    Sketcher.Constraint("Equal", 17, 19),
    Sketcher.Constraint("Equal", 18, 20),
    Sketcher.Constraint("Symmetric", 1, 3, 13, 3, -1, 1),
    Sketcher.Constraint("Symmetric", 3, 3, 15, 3, -1, 1),
    Sketcher.Constraint("Symmetric", 7, 3, 19, 3, -1, 1),
    Sketcher.Constraint("Symmetric", 7, 3, 13, 3, -2),
    Sketcher.Constraint("Symmetric", 4, 2, 15, 2, -2),
    Sketcher.Constraint("Horizontal", 8, 2, 11, 2),
    Sketcher.Constraint("Horizontal", 3, 2, 16, 2),
    Sketcher.Constraint("Horizontal", 20, 2, 23, 2),
    Sketcher.Constraint("Vertical", 3, 2, 4, 2),
    Sketcher.Constraint("Radius", 1, Q("2 mm")),
    Sketcher.Constraint("Radius", 0, Q("11.8 mm")),
    Sketcher.Constraint("DistanceX", 10, 1, 10, 2, Q("2 mm")),
    Sketcher.Constraint("DistanceX", 22, 2, 22, 1, Q("3.2 mm")),
    Sketcher.Constraint("DistanceY", 9, 1, 9, 2, Q("1.79 mm")),
    Sketcher.Constraint("DistanceY", 21, 2, 21, 1, Q("1.89 mm")),
    Sketcher.Constraint("DistanceX", 3, 3, -1, 1, Q("11.8 mm")),
    Sketcher.Constraint("DistanceX", 3, 2, -1, 1, Q("12.4 mm")),
    Sketcher.Constraint("DistanceX", 1, 3, -1, 1, Q("8.34386 mm")),
    Sketcher.Constraint("DistanceY", -1, 1, 1, 3, Q("8.34386 mm")),
])
sketch5.setExpression("Constraints[61]", "Params.sketch5_radius")
sketch5.setExpression("Constraints[62]", "Params.sketch5_radius2")
sketch5.setExpression("Constraints[63]", "Params.sketch5_width")
sketch5.setExpression("Constraints[64]", "Params.sketch5_width2")
sketch5.setExpression("Constraints[65]", "Params.sketch5_height")
pocket2 = body2.newObject("PartDesign::Pocket", "Pocket001")
pocket2.Profile = sketch5
pocket2.setExpression("Length", "Params.pocket2_length")

sketch6 = body2.newObject("Sketcher::SketchObject", "Sketch005")
sketch6.AttachmentSupport = (doc.getObject("XY_Plane001"), [""])
sketch6.MapMode = "FlatFace"
sketch6.addGeometry([
    Part.LineSegment(V(-1.6, 9.801022, 0), V(-1.6, 10.883014, 0)),
    Part.ArcOfCircle(Part.Circle(V(0, 0, 0), V(0, 0, 1), 11), math.radians(98.363602), math.radians(264.784091)),
    Part.LineSegment(V(-1, -10.954451, 0), V(-1, -9.967551, 0)),
    Part.LineSegment(V(-1, -9.967551, 0), V(1, -9.967551, 0)),
    Part.LineSegment(V(1, -9.967551, 0), V(1, -10.954451, 0)),
    Part.ArcOfCircle(Part.Circle(V(0, 0, 0), V(0, 0, 1), 11), math.radians(-84.784091), math.radians(81.636398)),
    Part.LineSegment(V(1.6, 10.883014, 0), V(1.6, 9.801022, 0)),
    Part.LineSegment(V(1.6, 9.801022, 0), V(-1.6, 9.801022, 0)),
], False)
sketch6.addConstraint([
    Sketcher.Constraint("Coincident", 0, 2, 1, 1),
    Sketcher.Constraint("Coincident", 1, 2, 2, 1),
    Sketcher.Constraint("Coincident", 2, 2, 3, 1),
    Sketcher.Constraint("Coincident", 3, 2, 4, 1),
    Sketcher.Constraint("Coincident", 4, 2, 5, 1),
    Sketcher.Constraint("Coincident", 5, 2, 6, 1),
    Sketcher.Constraint("Coincident", 6, 2, 7, 1),
    Sketcher.Constraint("Coincident", 7, 2, 0, 1),
    Sketcher.Constraint("Vertical", 0),
    Sketcher.Constraint("Vertical", 2),
    Sketcher.Constraint("Horizontal", 3),
    Sketcher.Constraint("Vertical", 4),
    Sketcher.Constraint("Vertical", 6),
    Sketcher.Constraint("Horizontal", 7),
    Sketcher.Constraint("Coincident", 1, 3, -1, 1),
    Sketcher.Constraint("Coincident", 5, 3, -1, 1),
    Sketcher.Constraint("Equal", 1, 5),
    Sketcher.Constraint("Horizontal", 1, 2, 4, 2),
    Sketcher.Constraint("Horizontal", 0, 2, 5, 2),
    Sketcher.Constraint("Radius", 1, Q("11 mm")),
    Sketcher.Constraint("DistanceX", 3, 1, 3, 2, Q("2 mm")),
    Sketcher.Constraint("DistanceX", 7, 2, 7, 1, Q("3.2 mm")),
    Sketcher.Constraint("DistanceY", 2, 1, 2, 2, Q("0.9869 mm")),
    Sketcher.Constraint("DistanceY", 0, 1, 0, 2, Q("1.081992 mm")),
])
sketch6.setExpression("Constraints[19]", "Params.sketch6_radius")
sketch6.setExpression("Constraints[20]", "Params.sketch6_width")
sketch6.setExpression("Constraints[21]", "Params.sketch6_width2")
pocket3 = body2.newObject("PartDesign::Pocket", "Pocket002")
pocket3.Profile = sketch6
pocket3.setExpression("Length", "Params.pocket3_length")

doc.recompute()
